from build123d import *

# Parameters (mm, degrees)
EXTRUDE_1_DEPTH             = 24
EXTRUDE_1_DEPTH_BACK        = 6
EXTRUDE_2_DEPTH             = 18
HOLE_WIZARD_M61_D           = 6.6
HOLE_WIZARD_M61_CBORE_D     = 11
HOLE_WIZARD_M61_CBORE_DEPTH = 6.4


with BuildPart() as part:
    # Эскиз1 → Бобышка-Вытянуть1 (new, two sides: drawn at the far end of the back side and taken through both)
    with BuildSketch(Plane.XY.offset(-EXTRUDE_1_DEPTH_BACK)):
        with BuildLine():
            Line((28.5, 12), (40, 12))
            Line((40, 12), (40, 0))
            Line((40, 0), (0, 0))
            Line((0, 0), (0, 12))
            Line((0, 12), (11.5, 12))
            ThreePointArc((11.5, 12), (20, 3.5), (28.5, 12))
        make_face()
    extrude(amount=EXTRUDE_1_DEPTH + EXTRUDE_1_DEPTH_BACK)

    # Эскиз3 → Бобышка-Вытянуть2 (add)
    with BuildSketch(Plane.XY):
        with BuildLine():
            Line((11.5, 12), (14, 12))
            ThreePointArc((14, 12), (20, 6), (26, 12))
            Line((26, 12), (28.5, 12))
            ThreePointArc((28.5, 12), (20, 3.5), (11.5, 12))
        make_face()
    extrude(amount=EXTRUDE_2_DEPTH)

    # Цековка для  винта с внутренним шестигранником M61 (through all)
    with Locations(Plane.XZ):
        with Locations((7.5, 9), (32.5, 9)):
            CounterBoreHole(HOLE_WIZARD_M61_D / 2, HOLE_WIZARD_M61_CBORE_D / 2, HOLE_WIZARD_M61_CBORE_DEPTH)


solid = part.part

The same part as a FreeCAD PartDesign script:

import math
import FreeCAD as App
import Part
import Sketcher

V = App.Vector

doc = App.newDocument("Part")
body = doc.addObject("PartDesign::Body", "Body")

# Sketch on XY plane
sketch1 = body.newObject("Sketcher::SketchObject", "Sketch")
sketch1.AttachmentSupport = (doc.getObject("XY_Plane"), [""])
sketch1.MapMode = "FlatFace"
sketch1.addGeometry([
    Part.LineSegment(V(40, 12, 0), V(28.5, 12, 0)),  # 0
    Part.ArcOfCircle(Part.Circle(V(20, 12, 0), V(0, 0, 1), 8.5), math.radians(180), math.radians(360)),  # 1
    Part.LineSegment(V(11.5, 12, 0), V(0, 12, 0)),  # 2
    Part.LineSegment(V(0, 12, 0), V(0, 0, 0)),  # 3
    Part.LineSegment(V(0, 0, 0), V(40, 0, 0)),  # 4
    Part.LineSegment(V(40, 0, 0), V(40, 12, 0)),  # 5
], False)
sketch1.addConstraint([
    Sketcher.Constraint("Coincident", 0, 2, 1, 2),
    Sketcher.Constraint("Coincident", 1, 1, 2, 1),
    Sketcher.Constraint("Coincident", 2, 2, 3, 1),
    Sketcher.Constraint("Coincident", 3, 2, 4, 1),
    Sketcher.Constraint("Coincident", 4, 2, 5, 1),
    Sketcher.Constraint("Coincident", 5, 2, 0, 1),
    Sketcher.Constraint("Horizontal", 0),
    Sketcher.Constraint("Horizontal", 2),
    Sketcher.Constraint("Vertical", 3),
    Sketcher.Constraint("Horizontal", 4),
    Sketcher.Constraint("Vertical", 5),
    Sketcher.Constraint("Coincident", 3, 2, -1, 1),
    Sketcher.Constraint("Horizontal", 1, 3, 0, 2),
    Sketcher.Constraint("Horizontal", 0, 2, 1, 1),
    Sketcher.Constraint("Equal", 0, 2),
    Sketcher.Constraint("Radius", 1, 8.5),
    Sketcher.Constraint("DistanceX", 4, 1, 4, 2, 40.0),
    Sketcher.Constraint("DistanceY", 3, 2, 3, 1, 12.0),
])
pad1 = body.newObject("PartDesign::Pad", "Pad")
pad1.Profile = sketch1
pad1.Type = "TwoLengths"
pad1.Length = 24
pad1.Length2 = 6

# Sketch on XY plane
sketch2 = body.newObject("Sketcher::SketchObject", "Sketch001")
sketch2.AttachmentSupport = (doc.getObject("XY_Plane"), [""])
sketch2.MapMode = "FlatFace"
sketch2.addGeometry([
    Part.LineSegment(V(14, 12, 0), V(11.5, 12, 0)),
    Part.ArcOfCircle(Part.Circle(V(20, 12, 0), V(0, 0, 1), 8.5), math.radians(180), math.radians(360)),
    Part.LineSegment(V(28.5, 12, 0), V(26, 12, 0)),
    Part.ArcOfCircle(Part.Circle(V(20, 12, 0), V(0, 0, 1), 6), math.radians(180), math.radians(360)),
], False)
sketch2.addConstraint([
    Sketcher.Constraint("Coincident", 0, 2, 1, 1),
    Sketcher.Constraint("Coincident", 1, 2, 2, 1),
    Sketcher.Constraint("Coincident", 2, 2, 3, 2),
    Sketcher.Constraint("Coincident", 3, 1, 0, 1),
    Sketcher.Constraint("Horizontal", 0),
    Sketcher.Constraint("Horizontal", 2),
    Sketcher.Constraint("Coincident", 3, 3, 1, 3),
    Sketcher.Constraint("Horizontal", 3, 3, 0, 2),
    Sketcher.Constraint("Horizontal", 0, 2, 1, 2),
    Sketcher.Constraint("Radius", 3, 6.0),
    Sketcher.Constraint("Radius", 1, 8.5),
    Sketcher.Constraint("DistanceX", -1, 1, 1, 3, 20.0),
    Sketcher.Constraint("DistanceY", -1, 1, 1, 3, 12.0),
])
pad2 = body.newObject("PartDesign::Pad", "Pad001")
pad2.Profile = sketch2
pad2.Length = 18

# Sketch on XZ plane
sketch3 = body.newObject("Sketcher::SketchObject", "Sketch002")
sketch3.AttachmentSupport = (doc.getObject("XZ_Plane"), [""])
sketch3.MapMode = "FlatFace"
sketch3.addGeometry([
    Part.Circle(V(7.5, 9, 0), V(0, 0, 1), 3.3),
    Part.Circle(V(32.5, 9, 0), V(0, 0, 1), 3.3),
], False)
sketch3.addConstraint([
    Sketcher.Constraint("Equal", 0, 1),
    Sketcher.Constraint("Horizontal", 0, 3, 1, 3),
    Sketcher.Constraint("Diameter", 0, 6.6),
    Sketcher.Constraint("DistanceY", -1, 1, 0, 3, 9.0),
    Sketcher.Constraint("DistanceX", 0, 3, 1, 3, 25.0),
    Sketcher.Constraint("DistanceX", -1, 1, 0, 3, 7.5),
])
doc.recompute()
hole = body.newObject("PartDesign::Hole", "Hole")
hole.Profile = sketch3
hole.ThreadType = "None"
hole.Diameter = 6.6
hole.DepthType = "ThroughAll"
hole.HoleCutType = "Counterbore"
hole.HoleCutDiameter = 11
hole.HoleCutDepth = 6.4

doc.recompute()
